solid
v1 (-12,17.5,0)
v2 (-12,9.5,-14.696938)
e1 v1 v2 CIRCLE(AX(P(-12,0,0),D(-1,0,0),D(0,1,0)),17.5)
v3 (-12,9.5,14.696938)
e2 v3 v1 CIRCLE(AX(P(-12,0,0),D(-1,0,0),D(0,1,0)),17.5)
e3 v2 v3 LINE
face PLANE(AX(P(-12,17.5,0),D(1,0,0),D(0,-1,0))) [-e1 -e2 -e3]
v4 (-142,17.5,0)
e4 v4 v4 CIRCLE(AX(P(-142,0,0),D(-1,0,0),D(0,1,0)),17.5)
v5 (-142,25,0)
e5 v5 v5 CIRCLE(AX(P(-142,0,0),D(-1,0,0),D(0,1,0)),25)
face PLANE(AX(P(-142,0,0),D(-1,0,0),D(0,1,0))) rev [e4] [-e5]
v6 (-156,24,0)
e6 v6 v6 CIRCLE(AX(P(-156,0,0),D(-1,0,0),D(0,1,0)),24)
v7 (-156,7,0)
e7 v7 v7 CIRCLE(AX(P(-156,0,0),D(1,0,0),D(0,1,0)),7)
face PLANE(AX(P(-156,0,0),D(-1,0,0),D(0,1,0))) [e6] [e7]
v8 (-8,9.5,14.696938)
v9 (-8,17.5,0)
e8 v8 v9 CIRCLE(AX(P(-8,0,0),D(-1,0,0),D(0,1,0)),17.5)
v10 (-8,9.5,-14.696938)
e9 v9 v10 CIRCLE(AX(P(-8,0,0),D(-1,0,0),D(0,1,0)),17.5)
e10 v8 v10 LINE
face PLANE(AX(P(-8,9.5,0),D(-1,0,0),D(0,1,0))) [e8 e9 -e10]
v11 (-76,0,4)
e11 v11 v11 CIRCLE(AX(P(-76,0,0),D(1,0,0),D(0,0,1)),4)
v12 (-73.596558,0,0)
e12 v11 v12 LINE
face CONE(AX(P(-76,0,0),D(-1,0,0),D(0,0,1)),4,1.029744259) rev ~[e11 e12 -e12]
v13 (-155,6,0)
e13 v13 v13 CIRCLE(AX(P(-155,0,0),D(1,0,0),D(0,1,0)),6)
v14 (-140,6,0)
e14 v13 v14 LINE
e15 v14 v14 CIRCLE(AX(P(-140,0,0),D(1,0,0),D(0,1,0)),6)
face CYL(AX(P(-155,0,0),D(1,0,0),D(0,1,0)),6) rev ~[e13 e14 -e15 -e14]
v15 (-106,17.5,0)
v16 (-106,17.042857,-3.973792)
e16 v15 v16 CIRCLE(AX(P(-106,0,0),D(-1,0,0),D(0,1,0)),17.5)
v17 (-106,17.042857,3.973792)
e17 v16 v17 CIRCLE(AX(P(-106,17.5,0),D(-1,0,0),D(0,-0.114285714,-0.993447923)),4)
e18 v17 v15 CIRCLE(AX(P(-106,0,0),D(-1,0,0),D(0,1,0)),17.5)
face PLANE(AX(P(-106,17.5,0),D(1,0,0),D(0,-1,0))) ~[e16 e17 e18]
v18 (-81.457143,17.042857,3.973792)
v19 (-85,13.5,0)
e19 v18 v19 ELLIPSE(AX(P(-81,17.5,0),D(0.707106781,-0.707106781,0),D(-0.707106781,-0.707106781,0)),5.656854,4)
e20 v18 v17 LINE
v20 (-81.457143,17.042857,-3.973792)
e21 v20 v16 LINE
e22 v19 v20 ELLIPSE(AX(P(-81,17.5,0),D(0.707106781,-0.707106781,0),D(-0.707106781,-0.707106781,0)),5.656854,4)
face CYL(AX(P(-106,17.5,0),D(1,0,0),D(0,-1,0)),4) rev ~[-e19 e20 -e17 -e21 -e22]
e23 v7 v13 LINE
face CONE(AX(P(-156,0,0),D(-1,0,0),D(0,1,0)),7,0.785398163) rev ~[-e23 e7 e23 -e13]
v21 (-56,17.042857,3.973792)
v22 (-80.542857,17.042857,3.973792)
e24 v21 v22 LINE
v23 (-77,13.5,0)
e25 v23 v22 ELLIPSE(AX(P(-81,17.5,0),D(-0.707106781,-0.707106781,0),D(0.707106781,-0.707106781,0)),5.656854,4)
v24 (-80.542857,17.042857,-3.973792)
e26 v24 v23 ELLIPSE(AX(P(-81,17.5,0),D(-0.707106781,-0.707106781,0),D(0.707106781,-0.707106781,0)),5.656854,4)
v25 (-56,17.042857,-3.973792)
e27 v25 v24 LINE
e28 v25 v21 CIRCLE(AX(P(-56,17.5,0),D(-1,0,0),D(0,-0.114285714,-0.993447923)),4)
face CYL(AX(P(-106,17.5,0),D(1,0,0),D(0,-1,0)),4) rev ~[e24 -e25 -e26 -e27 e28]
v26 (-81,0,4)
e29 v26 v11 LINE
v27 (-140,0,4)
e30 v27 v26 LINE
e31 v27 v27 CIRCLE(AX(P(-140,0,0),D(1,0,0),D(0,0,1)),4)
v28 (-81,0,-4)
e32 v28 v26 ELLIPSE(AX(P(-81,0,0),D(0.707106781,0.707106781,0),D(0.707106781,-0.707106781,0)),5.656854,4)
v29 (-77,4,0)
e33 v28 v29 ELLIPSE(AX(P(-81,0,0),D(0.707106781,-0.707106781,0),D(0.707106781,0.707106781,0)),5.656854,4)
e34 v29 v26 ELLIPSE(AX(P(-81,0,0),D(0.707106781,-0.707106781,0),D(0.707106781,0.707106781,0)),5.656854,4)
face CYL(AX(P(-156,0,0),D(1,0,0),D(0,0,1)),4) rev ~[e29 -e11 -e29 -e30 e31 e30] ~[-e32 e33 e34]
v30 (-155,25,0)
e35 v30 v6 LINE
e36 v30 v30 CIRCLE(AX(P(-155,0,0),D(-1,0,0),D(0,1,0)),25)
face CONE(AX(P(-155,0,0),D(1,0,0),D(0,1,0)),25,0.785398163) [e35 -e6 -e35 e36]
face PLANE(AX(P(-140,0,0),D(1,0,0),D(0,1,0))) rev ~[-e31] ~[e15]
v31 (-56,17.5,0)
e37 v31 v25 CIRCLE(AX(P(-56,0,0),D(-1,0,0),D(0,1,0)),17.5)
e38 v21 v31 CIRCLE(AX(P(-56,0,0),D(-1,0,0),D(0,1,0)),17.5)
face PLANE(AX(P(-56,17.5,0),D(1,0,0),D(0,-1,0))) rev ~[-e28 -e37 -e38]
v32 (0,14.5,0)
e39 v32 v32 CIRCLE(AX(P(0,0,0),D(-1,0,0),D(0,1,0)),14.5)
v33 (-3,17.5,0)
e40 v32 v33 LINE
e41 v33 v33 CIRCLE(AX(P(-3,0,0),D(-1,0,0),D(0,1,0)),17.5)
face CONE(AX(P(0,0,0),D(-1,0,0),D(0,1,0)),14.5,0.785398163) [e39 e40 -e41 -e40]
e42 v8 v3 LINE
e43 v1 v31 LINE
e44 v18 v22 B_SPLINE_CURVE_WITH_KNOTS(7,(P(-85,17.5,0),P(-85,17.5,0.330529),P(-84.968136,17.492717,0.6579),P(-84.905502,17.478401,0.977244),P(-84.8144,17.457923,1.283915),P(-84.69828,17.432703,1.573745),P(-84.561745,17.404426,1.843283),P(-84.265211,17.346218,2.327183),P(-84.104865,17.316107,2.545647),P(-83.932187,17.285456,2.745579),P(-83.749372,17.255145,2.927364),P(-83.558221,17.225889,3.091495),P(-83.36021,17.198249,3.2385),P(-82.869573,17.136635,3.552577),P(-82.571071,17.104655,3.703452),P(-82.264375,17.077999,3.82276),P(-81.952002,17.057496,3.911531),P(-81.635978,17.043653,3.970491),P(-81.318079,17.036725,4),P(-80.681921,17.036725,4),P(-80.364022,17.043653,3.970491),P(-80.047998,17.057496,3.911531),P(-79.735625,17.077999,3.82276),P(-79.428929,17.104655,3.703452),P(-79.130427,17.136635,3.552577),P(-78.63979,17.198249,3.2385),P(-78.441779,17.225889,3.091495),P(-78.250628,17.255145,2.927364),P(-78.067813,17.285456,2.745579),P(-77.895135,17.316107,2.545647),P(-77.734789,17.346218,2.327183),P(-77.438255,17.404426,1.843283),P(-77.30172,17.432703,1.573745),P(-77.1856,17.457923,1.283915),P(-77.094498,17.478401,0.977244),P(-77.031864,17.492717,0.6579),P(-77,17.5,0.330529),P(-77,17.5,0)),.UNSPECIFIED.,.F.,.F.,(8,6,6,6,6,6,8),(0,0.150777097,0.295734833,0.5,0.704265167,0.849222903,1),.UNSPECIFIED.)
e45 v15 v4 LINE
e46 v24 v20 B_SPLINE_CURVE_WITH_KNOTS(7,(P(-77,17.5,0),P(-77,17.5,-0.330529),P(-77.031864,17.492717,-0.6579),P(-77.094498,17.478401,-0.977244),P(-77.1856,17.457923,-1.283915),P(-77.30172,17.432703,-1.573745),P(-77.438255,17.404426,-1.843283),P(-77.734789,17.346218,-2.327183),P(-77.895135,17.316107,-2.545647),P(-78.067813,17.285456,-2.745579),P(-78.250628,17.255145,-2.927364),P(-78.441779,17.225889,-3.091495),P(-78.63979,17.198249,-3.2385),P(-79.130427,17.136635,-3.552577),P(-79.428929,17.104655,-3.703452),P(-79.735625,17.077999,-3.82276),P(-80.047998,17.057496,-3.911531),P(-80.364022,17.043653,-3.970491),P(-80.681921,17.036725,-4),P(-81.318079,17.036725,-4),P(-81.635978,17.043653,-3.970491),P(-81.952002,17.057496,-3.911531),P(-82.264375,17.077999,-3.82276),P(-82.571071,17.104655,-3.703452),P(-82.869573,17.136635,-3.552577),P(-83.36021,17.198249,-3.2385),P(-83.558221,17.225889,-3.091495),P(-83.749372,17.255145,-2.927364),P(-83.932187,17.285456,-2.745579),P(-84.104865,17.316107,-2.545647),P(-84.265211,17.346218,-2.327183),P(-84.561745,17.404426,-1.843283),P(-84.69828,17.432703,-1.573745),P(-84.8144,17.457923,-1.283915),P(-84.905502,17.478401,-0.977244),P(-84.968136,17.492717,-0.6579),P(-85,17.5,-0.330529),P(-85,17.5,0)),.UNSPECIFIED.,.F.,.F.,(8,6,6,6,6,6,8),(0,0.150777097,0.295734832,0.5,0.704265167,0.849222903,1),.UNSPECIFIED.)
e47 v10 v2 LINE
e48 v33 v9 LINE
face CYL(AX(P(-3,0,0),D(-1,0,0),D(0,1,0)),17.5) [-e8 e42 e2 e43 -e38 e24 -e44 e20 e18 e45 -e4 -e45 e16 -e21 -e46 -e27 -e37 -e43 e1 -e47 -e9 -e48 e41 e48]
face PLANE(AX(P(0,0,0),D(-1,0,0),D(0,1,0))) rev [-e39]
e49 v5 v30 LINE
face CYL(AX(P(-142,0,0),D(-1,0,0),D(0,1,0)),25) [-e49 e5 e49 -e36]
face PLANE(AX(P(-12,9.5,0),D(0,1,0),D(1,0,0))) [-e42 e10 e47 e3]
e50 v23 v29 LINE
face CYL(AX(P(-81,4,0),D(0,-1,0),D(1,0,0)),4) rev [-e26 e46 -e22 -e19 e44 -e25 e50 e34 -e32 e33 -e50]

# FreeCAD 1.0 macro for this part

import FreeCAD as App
import Part
import Sketcher
Q = App.Units.Quantity


def add_polygon(sketch, points):
    """Adds a closed chain of lines whose ends are joined by coincident constraints."""
    first, n = sketch.GeometryCount, len(points)
    for a, b in zip(points, points[1:] + points[:1]):
        sketch.addGeometry(Part.LineSegment(App.Vector(*a, 0), App.Vector(*b, 0)), False)
    for i in range(n):
        sketch.addConstraint(Sketcher.Constraint("Coincident", first + i, 2, first + (i + 1) % n, 1))

doc = App.newDocument("Part")
params = doc.addObject("Spreadsheet::Sheet", "Params")
for row, (alias, value) in enumerate([
    ("sketch1_width", "156 mm"),
    ("sketch1_height", "24 mm"),
    ("sketch1_height2", "14.5 mm"),
    ("revolution_angle", "360 deg"),
    ("sketch2_diameter", "8 mm"),
    ("hole_diameter", "8 mm"),
    ("hole_depth", "80 mm"),
    ("sketch3_width", "16 mm"),
    ("sketch3_height", "3 mm"),
    ("groove_angle", "360 deg"),
    ("sketch4_width", "4 mm"),
    ("sketch4_height", "8 mm"),
    ("sketch5_width", "4 mm"),
    ("sketch5_height", "17.5 mm"),
    ("groove2_angle", "360 deg"),
    ("sketch6_width", "50 mm"),
    ("sketch6_height", "4 mm"),
    ("groove3_angle", "360 deg"),
], start=1):
    params.set(f"A{row}", alias)
    params.set(f"B{row}", "=" + value)
    params.setAlias(f"B{row}", alias)

body = doc.addObject("PartDesign::Body", "Body")

# Sketch on XY plane
sketch1 = body.newObject("Sketcher::SketchObject", "Sketch")
sketch1.AttachmentSupport = (doc.getObject("XY_Plane"), [""])
sketch1.MapMode = "FlatFace"
add_polygon(sketch1, [(-156, 0), (0, 0), (0, 14.5), (-3, 17.5), (-142, 17.5), (-142, 25), (-155, 25), (-156, 24)])  # lines 0-7
sketch1.addConstraint([
    Sketcher.Constraint("Horizontal", 0),
    Sketcher.Constraint("Vertical", 1),
    Sketcher.Constraint("Horizontal", 3),
    Sketcher.Constraint("Vertical", 4),
    Sketcher.Constraint("Horizontal", 5),
    Sketcher.Constraint("Vertical", 7),
    Sketcher.Constraint("Coincident", 0, 2, -1, 1),
    Sketcher.Constraint("Perpendicular", 2, 6),
    Sketcher.Constraint("DistanceX", 0, 1, 0, 2, Q("156 mm")),
    Sketcher.Constraint("DistanceX", 2, 2, -1, 1, Q("3 mm")),
    Sketcher.Constraint("DistanceY", 1, 2, 2, 2, Q("3 mm")),
    Sketcher.Constraint("DistanceX", 6, 2, 5, 2, Q("1 mm")),
    Sketcher.Constraint("DistanceX", 6, 2, 4, 2, Q("14 mm")),
    Sketcher.Constraint("DistanceY", 7, 2, 7, 1, Q("24 mm")),
    Sketcher.Constraint("DistanceY", 1, 1, 1, 2, Q("14.5 mm")),
])
sketch1.setExpression("Constraints[16]", "Params.sketch1_width")
sketch1.setExpression("Constraints[21]", "Params.sketch1_height")
sketch1.setExpression("Constraints[22]", "Params.sketch1_height2")
revolution = body.newObject("PartDesign::Revolution", "Revolution")
revolution.Profile = sketch1
revolution.ReferenceAxis = (sketch1, ["H_Axis"])
revolution.setExpression("Angle", "Params.revolution_angle")

# Sketch on YZ plane
sketch2 = body.newObject("Sketcher::SketchObject", "Sketch001")
sketch2.AttachmentSupport = (doc.getObject("YZ_Plane"), [""])
sketch2.MapMode = "FlatFace"
sketch2.AttachmentOffset = App.Placement(App.Vector(0, 0, -156), App.Rotation())
sketch2.addGeometry(Part.Circle(App.Vector(0, 0, 0), App.Vector(0, 0, 1), 4), False)
sketch2.addConstraint([
    Sketcher.Constraint("Coincident", 0, 3, -1, 1),
    Sketcher.Constraint("Diameter", 0, Q("8 mm")),
])
sketch2.setExpression("Constraints[1]", "Params.sketch2_diameter")
doc.recompute()
hole = body.newObject("PartDesign::Hole", "Hole")
hole.Profile = sketch2
hole.ThreadType = "None"
hole.setExpression("Diameter", "Params.hole_diameter")
hole.DepthType = "Dimension"
hole.setExpression("Depth", "Params.hole_depth")
hole.DrillPoint = "Angled"
hole.DrillPointAngle = 118
hole.Reversed = True

# Sketch on XY plane
sketch3 = body.newObject("Sketcher::SketchObject", "Sketch002")
sketch3.AttachmentSupport = (doc.getObject("XY_Plane"), [""])
sketch3.MapMode = "FlatFace"
add_polygon(sketch3, [(-156, 7), (-156, 4), (-140, 4), (-140, 6), (-155, 6)])  # lines 0-4
sketch3.addConstraint([
    Sketcher.Constraint("Vertical", 0),
    Sketcher.Constraint("Horizontal", 1),
    Sketcher.Constraint("Vertical", 2),
    Sketcher.Constraint("Horizontal", 3),
    Sketcher.Constraint("DistanceX", 1, 1, 1, 2, Q("16 mm")),
    Sketcher.Constraint("DistanceY", -1, 1, 2, 2, Q("6 mm")),
    Sketcher.Constraint("DistanceX", 0, 2, 3, 2, Q("1 mm")),
    Sketcher.Constraint("DistanceY", 3, 2, 4, 2, Q("1 mm")),
    Sketcher.Constraint("DistanceY", 0, 2, 0, 1, Q("3 mm")),
    Sketcher.Constraint("DistanceX", 0, 2, -1, 1, Q("156 mm")),
])
sketch3.setExpression("Constraints[9]", "Params.sketch3_width")
sketch3.setExpression("Constraints[13]", "Params.sketch3_height")
groove = body.newObject("PartDesign::Groove", "Groove")
groove.Profile = sketch3
groove.ReferenceAxis = (sketch3, ["H_Axis"])
groove.setExpression("Angle", "Params.groove_angle")

# Sketch on XY plane
sketch4 = body.newObject("Sketcher::SketchObject", "Sketch003")
sketch4.AttachmentSupport = (doc.getObject("XY_Plane"), [""])
sketch4.MapMode = "FlatFace"
add_polygon(sketch4, [(-8, 17.5), (-12, 17.5), (-12, 9.5), (-8, 9.5)])  # lines 0-3
sketch4.addConstraint([
    Sketcher.Constraint("Horizontal", 0),
    Sketcher.Constraint("Vertical", 1),
    Sketcher.Constraint("Horizontal", 2),
    Sketcher.Constraint("Vertical", 3),
    Sketcher.Constraint("DistanceX", 0, 2, 0, 1, Q("4 mm")),
    Sketcher.Constraint("DistanceY", 1, 2, 1, 1, Q("8 mm")),
    Sketcher.Constraint("DistanceX", 0, 2, -1, 1, Q("12 mm")),
    Sketcher.Constraint("DistanceY", -1, 1, 0, 2, Q("17.5 mm")),
])
sketch4.setExpression("Constraints[8]", "Params.sketch4_width")
sketch4.setExpression("Constraints[9]", "Params.sketch4_height")
pocket1 = body.newObject("PartDesign::Pocket", "Pocket")
pocket1.Profile = sketch4
pocket1.Type = "ThroughAll"
pocket1.Midplane = True

# Sketch on XY plane
sketch5 = body.newObject("Sketcher::SketchObject", "Sketch004")
sketch5.AttachmentSupport = (doc.getObject("XY_Plane"), [""])
sketch5.MapMode = "FlatFace"
add_polygon(sketch5, [(-77, 0), (-77, 17.5), (-81, 17.5), (-81, 0)])  # lines 0-3
sketch5.addGeometry(Part.LineSegment(App.Vector(-81, 0, 0), App.Vector(-81, 17.5, 0)), True)  # axis
sketch5.addConstraint([
    Sketcher.Constraint("Vertical", 0),
    Sketcher.Constraint("Horizontal", 1),
    Sketcher.Constraint("Vertical", 2),
    Sketcher.Constraint("Horizontal", 3),
    Sketcher.Constraint("Vertical", 4),
    Sketcher.Constraint("Coincident", 4, 1, 2, 2),
    Sketcher.Constraint("PointOnObject", 2, 2, -1),
    Sketcher.Constraint("Horizontal", 0, 2, 4, 2),
    Sketcher.Constraint("DistanceX", 1, 2, 1, 1, Q("4 mm")),
    Sketcher.Constraint("DistanceY", 0, 1, 0, 2, Q("17.5 mm")),
    Sketcher.Constraint("DistanceX", 0, 2, -1, 1, Q("77 mm")),
])
sketch5.setExpression("Constraints[12]", "Params.sketch5_width")
sketch5.setExpression("Constraints[13]", "Params.sketch5_height")
groove2 = body.newObject("PartDesign::Groove", "Groove001")
groove2.Profile = sketch5
groove2.ReferenceAxis = (sketch5, ["Axis0"])
groove2.setExpression("Angle", "Params.groove2_angle")

# Sketch on XY plane
sketch6 = body.newObject("Sketcher::SketchObject", "Sketch005")
sketch6.AttachmentSupport = (doc.getObject("XY_Plane"), [""])
sketch6.MapMode = "FlatFace"
add_polygon(sketch6, [(-106, 17.5), (-106, 13.5), (-56, 13.5), (-56, 17.5)])  # lines 0-3
sketch6.addGeometry(Part.LineSegment(App.Vector(-106, 17.5, 0), App.Vector(-56, 17.5, 0)), True)  # axis
sketch6.addConstraint([
    Sketcher.Constraint("Vertical", 0),
    Sketcher.Constraint("Horizontal", 1),
    Sketcher.Constraint("Vertical", 2),
    Sketcher.Constraint("Horizontal", 3),
    Sketcher.Constraint("Horizontal", 4),
    Sketcher.Constraint("Coincident", 4, 1, 3, 2),
    Sketcher.Constraint("Vertical", 1, 2, 4, 2),
    Sketcher.Constraint("DistanceX", 1, 1, 1, 2, Q("50 mm")),
    Sketcher.Constraint("DistanceY", 0, 2, 0, 1, Q("4 mm")),
    Sketcher.Constraint("DistanceX", 0, 2, -1, 1, Q("106 mm")),
    Sketcher.Constraint("DistanceY", -1, 1, 0, 2, Q("13.5 mm")),
])
sketch6.setExpression("Constraints[11]", "Params.sketch6_width")
sketch6.setExpression("Constraints[12]", "Params.sketch6_height")
groove3 = body.newObject("PartDesign::Groove", "Groove002")
groove3.Profile = sketch6
groove3.ReferenceAxis = (sketch6, ["Axis0"])
groove3.setExpression("Angle", "Params.groove3_angle")

doc.recompute()
